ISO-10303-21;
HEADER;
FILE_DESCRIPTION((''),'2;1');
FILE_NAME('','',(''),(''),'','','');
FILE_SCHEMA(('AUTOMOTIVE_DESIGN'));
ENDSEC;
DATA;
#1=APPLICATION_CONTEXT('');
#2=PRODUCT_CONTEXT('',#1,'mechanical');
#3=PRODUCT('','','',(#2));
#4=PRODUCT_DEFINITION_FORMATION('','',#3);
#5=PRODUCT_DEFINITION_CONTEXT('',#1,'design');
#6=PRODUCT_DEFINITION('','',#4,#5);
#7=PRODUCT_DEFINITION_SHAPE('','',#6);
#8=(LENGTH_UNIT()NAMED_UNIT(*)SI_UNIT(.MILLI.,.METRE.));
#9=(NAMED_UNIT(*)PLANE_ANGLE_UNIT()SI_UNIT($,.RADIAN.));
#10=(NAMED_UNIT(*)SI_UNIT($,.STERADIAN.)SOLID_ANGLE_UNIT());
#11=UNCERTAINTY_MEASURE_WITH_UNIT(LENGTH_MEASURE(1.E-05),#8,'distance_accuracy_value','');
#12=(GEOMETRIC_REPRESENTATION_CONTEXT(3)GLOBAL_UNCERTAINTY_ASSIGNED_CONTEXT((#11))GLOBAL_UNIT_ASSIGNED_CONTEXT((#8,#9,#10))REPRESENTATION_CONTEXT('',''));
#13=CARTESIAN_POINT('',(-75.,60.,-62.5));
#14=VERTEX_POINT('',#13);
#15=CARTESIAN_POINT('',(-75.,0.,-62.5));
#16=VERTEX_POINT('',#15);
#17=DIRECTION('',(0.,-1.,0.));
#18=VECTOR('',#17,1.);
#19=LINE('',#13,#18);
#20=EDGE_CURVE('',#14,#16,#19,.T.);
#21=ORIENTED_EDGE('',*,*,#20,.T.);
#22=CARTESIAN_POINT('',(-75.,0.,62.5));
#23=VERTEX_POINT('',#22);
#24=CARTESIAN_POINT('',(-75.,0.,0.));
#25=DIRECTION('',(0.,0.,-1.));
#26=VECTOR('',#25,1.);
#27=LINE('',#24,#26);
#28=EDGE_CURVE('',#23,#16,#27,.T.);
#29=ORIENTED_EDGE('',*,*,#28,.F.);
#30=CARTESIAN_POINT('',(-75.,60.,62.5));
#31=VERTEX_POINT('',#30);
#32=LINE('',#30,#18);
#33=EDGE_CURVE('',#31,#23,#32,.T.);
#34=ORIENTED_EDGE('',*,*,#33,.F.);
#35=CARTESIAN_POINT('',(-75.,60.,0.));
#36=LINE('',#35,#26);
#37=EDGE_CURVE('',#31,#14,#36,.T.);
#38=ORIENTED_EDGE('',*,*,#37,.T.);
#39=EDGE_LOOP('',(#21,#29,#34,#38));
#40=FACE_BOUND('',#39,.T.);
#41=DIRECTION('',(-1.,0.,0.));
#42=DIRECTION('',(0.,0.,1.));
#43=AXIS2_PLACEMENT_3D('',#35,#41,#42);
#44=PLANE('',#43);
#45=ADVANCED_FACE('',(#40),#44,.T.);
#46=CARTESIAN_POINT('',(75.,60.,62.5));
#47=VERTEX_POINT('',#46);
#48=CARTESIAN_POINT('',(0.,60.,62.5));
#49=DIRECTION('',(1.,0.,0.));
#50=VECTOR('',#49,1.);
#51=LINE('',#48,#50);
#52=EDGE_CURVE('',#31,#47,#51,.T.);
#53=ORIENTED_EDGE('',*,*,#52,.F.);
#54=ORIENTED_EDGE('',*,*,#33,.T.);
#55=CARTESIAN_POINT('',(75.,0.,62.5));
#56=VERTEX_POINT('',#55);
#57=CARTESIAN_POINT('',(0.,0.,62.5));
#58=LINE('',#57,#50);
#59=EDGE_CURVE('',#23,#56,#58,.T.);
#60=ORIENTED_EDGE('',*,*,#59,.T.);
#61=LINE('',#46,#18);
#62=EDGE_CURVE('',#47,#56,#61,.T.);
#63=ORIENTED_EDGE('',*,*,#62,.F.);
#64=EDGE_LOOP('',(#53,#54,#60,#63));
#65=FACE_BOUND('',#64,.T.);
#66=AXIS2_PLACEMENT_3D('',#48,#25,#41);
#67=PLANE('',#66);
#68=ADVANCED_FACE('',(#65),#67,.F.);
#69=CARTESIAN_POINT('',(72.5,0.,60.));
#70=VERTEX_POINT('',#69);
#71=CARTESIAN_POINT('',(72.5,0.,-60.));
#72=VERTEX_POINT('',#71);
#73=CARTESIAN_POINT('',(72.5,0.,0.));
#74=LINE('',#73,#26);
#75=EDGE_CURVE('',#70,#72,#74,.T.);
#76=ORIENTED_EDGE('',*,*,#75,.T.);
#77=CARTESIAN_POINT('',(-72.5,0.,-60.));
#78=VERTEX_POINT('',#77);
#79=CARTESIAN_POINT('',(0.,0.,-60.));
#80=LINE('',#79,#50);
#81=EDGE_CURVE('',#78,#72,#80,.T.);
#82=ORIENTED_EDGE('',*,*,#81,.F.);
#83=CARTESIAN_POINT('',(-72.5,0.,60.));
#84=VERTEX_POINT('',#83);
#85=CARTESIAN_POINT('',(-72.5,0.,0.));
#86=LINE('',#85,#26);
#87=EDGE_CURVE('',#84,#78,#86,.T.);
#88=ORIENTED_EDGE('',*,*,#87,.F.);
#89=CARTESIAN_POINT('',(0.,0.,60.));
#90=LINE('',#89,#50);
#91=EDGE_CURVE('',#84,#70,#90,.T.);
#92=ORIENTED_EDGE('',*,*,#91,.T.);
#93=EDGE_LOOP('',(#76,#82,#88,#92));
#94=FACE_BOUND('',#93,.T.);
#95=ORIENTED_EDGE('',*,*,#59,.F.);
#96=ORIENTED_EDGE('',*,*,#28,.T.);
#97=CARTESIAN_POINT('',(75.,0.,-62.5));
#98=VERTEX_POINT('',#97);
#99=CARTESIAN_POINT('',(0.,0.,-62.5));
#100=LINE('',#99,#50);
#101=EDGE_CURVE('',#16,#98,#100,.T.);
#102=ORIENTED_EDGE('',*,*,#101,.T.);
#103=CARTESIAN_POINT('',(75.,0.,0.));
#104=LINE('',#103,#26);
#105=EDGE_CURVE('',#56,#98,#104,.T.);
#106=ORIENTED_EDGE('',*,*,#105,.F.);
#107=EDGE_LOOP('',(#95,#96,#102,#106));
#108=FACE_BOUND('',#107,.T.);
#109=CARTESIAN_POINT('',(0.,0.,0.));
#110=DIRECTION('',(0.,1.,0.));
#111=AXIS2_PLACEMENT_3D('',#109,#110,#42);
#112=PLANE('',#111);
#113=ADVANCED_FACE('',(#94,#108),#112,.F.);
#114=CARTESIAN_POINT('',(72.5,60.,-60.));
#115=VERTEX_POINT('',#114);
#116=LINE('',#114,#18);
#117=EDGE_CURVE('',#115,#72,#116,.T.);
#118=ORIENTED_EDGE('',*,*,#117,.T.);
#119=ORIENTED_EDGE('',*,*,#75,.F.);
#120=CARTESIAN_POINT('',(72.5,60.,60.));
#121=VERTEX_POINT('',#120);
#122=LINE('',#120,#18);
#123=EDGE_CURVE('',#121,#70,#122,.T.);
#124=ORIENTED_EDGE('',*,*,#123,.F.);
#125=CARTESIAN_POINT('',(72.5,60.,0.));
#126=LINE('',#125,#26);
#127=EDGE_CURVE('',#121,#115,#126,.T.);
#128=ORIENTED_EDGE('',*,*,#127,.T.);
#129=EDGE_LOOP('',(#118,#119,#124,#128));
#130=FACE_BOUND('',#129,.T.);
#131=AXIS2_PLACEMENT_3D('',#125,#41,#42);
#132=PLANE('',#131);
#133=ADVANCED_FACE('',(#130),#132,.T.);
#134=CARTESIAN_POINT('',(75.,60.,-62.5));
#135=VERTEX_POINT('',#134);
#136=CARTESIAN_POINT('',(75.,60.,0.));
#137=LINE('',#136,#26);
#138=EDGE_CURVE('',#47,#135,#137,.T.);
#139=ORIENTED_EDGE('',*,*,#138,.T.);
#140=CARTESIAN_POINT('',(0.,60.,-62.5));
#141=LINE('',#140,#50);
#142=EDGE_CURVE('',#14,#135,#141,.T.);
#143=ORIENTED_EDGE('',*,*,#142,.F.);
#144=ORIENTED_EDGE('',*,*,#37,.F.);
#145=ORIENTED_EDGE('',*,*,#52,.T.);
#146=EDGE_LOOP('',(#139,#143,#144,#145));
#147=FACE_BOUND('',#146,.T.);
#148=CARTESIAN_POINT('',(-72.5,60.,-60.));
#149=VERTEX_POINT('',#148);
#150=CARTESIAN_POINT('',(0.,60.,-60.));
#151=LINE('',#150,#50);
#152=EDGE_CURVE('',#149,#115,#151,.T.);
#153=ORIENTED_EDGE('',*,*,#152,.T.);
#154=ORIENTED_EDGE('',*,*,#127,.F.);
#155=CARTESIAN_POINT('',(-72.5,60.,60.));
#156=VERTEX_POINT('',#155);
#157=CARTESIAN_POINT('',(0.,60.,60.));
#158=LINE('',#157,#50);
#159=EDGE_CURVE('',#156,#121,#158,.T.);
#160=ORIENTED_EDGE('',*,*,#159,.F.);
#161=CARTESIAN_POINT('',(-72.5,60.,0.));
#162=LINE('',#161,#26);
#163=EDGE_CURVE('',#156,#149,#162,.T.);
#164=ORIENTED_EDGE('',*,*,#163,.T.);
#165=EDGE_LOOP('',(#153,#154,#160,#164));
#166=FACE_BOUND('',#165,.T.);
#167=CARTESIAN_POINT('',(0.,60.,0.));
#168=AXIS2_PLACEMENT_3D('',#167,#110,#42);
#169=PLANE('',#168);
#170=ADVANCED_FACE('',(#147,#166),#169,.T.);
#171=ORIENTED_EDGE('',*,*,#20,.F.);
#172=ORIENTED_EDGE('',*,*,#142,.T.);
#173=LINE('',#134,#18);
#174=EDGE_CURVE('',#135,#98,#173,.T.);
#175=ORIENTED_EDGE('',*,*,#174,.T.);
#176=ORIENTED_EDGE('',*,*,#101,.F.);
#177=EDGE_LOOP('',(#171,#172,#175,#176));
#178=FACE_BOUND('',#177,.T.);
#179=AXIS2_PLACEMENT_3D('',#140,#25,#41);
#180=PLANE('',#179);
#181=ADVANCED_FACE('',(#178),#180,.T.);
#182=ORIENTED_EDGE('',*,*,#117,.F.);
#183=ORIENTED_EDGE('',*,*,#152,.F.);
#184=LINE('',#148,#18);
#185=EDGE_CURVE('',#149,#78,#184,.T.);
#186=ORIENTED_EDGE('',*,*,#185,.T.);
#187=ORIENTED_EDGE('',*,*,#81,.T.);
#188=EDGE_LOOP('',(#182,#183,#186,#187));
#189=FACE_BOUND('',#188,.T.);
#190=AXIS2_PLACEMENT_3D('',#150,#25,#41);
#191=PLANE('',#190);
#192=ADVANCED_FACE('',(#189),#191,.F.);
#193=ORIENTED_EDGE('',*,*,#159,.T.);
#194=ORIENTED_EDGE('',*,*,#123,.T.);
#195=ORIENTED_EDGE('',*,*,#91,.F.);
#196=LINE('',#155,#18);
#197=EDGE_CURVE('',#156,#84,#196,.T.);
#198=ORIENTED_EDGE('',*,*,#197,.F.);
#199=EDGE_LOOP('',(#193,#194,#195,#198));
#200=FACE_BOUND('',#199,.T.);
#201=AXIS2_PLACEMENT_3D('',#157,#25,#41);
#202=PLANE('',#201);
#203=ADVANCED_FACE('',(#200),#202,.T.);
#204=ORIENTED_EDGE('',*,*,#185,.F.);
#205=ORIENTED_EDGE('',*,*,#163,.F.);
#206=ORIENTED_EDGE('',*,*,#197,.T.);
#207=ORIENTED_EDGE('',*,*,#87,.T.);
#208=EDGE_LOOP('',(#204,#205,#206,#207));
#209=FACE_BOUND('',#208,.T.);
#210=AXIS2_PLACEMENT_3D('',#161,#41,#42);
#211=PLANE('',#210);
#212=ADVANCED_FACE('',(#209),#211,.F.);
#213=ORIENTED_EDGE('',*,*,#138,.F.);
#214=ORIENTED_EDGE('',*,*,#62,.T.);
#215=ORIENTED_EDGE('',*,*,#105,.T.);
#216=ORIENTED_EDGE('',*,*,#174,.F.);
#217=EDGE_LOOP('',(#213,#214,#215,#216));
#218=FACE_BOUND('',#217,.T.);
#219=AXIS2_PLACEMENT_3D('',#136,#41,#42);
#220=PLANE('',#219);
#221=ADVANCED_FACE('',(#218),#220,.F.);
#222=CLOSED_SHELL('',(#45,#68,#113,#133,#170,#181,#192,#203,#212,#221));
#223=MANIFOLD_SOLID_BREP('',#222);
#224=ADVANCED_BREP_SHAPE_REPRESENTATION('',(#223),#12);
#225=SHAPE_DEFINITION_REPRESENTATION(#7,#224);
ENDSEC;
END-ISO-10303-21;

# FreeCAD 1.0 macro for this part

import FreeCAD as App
import Part
import Sketcher
from FreeCAD import Vector
Q = App.Units.Quantity


def faces_at(feature, points):
    """Names of the faces that lie closest to the given points."""
    faces = feature.Shape.Faces
    near = lambda p: min(range(len(faces)), key=lambda i: faces[i].distToShape(Part.Vertex(*p))[0])
    return sorted({f"Face{near(p) + 1}" for p in points})


def add_polygon(sketch, points):
    """Adds a closed chain of lines whose ends are joined by coincident constraints."""
    first, n = sketch.GeometryCount, len(points)
    for a, b in zip(points, points[1:] + points[:1]):
        sketch.addGeometry(Part.LineSegment(App.Vector(*a, 0), App.Vector(*b, 0)), False)
    for i in range(n):
        sketch.addConstraint(Sketcher.Constraint("Coincident", first + i, 2, first + (i + 1) % n, 1))

doc = App.newDocument("Part")
params = doc.addObject("Spreadsheet::Sheet", "Params")
for row, (alias, value) in enumerate([
    ("sketch1_width", "150 mm"),
    ("sketch1_height", "125 mm"),
    ("pad1_length", "60 mm"),
    ("thickness_wall", "2.5 mm"),
], start=1):
    params.set(f"A{row}", alias)
    params.set(f"B{row}", "=" + value)
    params.setAlias(f"B{row}", alias)

body = doc.addObject("PartDesign::Body", "Body")

sketch1 = body.newObject("Sketcher::SketchObject", "Sketch")
sketch1.AttachmentSupport = (doc.getObject("XZ_Plane"), [""])
sketch1.MapMode = "FlatFace"
add_polygon(sketch1, [(-75, -62), (-75, 62), (75, 62), (75, -62)])
sketch1.addConstraint([
    Sketcher.Constraint("Vertical", 0),
    Sketcher.Constraint("Horizontal", 1),
    Sketcher.Constraint("Vertical", 2),
    Sketcher.Constraint("Horizontal", 3),
    Sketcher.Constraint("Symmetric", 0, 2, 2, 2, -1, 1),
    Sketcher.Constraint("DistanceX", 1, 1, 1, 2, Q("150 mm")),
    Sketcher.Constraint("DistanceY", 0, 1, 0, 2, Q("125 mm")),
])
sketch1.setExpression("Constraints[9]", "Params.sketch1_width")
sketch1.setExpression("Constraints[10]", "Params.sketch1_height")
pad1 = body.newObject("PartDesign::Pad", "Pad")
pad1.Profile = sketch1
pad1.setExpression("Length", "Params.pad1_length")
pad1.Reversed = True
doc.recompute()

thickness = body.newObject("PartDesign::Thickness", "Thickness")
thickness.Base = (pad1, faces_at(pad1, [(0, 60, 0), (0, 0, 0)]))
thickness.setExpression("Value", "Params.thickness_wall")
thickness.Reversed = True
thickness.Join = "Intersection"

doc.recompute()
